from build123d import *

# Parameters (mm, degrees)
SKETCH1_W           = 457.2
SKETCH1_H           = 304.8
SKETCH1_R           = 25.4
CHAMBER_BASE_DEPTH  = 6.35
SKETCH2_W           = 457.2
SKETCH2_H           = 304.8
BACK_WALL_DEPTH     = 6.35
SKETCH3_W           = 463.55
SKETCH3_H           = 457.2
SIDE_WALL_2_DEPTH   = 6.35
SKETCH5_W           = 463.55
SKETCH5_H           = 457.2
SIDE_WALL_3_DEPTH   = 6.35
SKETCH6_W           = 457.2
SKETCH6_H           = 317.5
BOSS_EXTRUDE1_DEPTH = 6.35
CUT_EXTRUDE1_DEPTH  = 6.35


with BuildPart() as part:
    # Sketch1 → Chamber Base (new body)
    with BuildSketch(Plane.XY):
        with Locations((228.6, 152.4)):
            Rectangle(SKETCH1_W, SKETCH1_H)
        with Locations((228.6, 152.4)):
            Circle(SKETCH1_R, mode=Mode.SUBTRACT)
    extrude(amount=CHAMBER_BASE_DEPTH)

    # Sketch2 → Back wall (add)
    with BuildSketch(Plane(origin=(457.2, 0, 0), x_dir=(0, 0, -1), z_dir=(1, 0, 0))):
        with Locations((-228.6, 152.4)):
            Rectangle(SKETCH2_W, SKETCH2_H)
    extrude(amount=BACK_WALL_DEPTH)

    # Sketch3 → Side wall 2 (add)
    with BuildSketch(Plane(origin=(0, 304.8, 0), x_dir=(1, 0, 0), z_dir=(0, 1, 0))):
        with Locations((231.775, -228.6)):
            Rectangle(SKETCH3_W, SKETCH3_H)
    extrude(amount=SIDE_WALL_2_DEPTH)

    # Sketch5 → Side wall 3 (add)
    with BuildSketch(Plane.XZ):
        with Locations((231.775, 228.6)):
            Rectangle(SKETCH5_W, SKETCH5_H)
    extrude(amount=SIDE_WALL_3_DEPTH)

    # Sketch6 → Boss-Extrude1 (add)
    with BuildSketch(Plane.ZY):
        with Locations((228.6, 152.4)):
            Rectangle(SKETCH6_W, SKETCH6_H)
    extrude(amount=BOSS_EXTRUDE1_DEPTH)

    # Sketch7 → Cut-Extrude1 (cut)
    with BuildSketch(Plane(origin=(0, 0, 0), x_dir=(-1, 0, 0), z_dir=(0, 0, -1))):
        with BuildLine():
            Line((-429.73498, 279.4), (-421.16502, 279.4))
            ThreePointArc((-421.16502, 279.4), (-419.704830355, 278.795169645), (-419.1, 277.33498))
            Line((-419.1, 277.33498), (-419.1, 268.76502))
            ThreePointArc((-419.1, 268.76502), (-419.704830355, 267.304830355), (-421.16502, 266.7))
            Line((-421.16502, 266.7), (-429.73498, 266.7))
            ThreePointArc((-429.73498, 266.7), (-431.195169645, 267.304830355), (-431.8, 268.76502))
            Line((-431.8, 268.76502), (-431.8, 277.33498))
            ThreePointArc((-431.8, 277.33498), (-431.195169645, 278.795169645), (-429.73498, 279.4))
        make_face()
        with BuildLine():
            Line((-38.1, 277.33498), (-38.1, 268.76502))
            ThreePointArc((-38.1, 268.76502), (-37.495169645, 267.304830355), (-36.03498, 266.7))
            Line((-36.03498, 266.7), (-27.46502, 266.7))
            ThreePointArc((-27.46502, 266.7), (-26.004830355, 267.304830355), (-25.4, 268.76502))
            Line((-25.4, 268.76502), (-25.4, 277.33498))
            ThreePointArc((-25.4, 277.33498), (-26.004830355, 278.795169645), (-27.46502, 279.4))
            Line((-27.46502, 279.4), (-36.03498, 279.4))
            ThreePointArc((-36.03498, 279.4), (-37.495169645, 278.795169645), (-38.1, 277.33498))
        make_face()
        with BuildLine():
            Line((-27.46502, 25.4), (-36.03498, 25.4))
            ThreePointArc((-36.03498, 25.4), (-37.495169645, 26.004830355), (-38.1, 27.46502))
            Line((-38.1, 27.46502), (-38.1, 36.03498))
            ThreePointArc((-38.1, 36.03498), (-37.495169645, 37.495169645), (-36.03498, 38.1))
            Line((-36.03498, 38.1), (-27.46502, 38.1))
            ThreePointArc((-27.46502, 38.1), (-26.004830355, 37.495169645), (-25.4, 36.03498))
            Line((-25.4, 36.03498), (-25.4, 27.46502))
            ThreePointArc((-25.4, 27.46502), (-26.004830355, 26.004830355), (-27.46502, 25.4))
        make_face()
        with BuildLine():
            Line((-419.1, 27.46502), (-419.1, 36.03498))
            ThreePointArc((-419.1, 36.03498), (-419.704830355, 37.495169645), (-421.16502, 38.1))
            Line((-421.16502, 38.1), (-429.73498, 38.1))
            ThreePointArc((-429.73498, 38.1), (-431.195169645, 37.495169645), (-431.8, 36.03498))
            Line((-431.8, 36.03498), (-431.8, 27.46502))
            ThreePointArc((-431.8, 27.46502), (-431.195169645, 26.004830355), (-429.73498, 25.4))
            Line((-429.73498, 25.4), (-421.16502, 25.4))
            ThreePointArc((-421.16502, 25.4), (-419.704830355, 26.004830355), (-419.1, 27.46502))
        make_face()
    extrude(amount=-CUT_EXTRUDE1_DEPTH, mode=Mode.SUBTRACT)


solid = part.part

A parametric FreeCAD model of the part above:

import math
import FreeCAD as App
import Part
import Sketcher
from FreeCAD import Vector
Q = App.Units.Quantity


def add_polygon(sketch, points):
    """Adds a closed chain of lines whose ends are joined by coincident constraints."""
    first, n = sketch.GeometryCount, len(points)
    for a, b in zip(points, points[1:] + points[:1]):
        sketch.addGeometry(Part.LineSegment(App.Vector(*a, 0), App.Vector(*b, 0)), False)
    for i in range(n):
        sketch.addConstraint(Sketcher.Constraint("Coincident", first + i, 2, first + (i + 1) % n, 1))

doc = App.newDocument("Part")
body = doc.addObject("PartDesign::Body", "Body")

sketch1 = body.newObject("Sketcher::SketchObject", "Sketch")
sketch1.AttachmentSupport = (doc.getObject("XY_Plane"), [""])
sketch1.MapMode = "FlatFace"
add_polygon(sketch1, [(0, 305), (0, 0), (457, 0), (457, 305)])
sketch1.addGeometry(Part.Circle(Vector(229, 152, 0), Vector(0, 0, 1), 25), False)
sketch1.addConstraint(Sketcher.Constraint("Vertical", 0))
sketch1.addConstraint(Sketcher.Constraint("Horizontal", 1))
sketch1.addConstraint(Sketcher.Constraint("Vertical", 2))
sketch1.addConstraint(Sketcher.Constraint("Horizontal", 3))
sketch1.addConstraint(Sketcher.Constraint("Coincident", 0, 2, -1, 1))
sketch1.addConstraint(Sketcher.Constraint("Diameter", 4, Q("2 in")))
sketch1.addConstraint(Sketcher.Constraint("DistanceX", 1, 1, 1, 2, Q("18 in")))
sketch1.addConstraint(Sketcher.Constraint("DistanceY", 0, 2, 0, 1, Q("12 in")))
sketch1.addConstraint(Sketcher.Constraint("DistanceX", -1, 1, 4, 3, Q("9 in")))
sketch1.addConstraint(Sketcher.Constraint("DistanceY", -1, 1, 4, 3, Q("6 in")))
pad1 = body.newObject("PartDesign::Pad", "Pad")
pad1.Profile = sketch1
pad1.Length = Q("0.25 in")

sketch2 = body.newObject("Sketcher::SketchObject", "Sketch001")
sketch2.AttachmentSupport = (doc.getObject("YZ_Plane"), [""])
sketch2.MapMode = "FlatFace"
sketch2.AttachmentOffset = App.Placement(Vector(0, 0, 18 * 25.4), App.Rotation())
add_polygon(sketch2, [(305, 457), (0, 457), (0, 0), (305, 0)])
sketch2.addConstraint(Sketcher.Constraint("Horizontal", 0))
sketch2.addConstraint(Sketcher.Constraint("Vertical", 1))
sketch2.addConstraint(Sketcher.Constraint("Horizontal", 2))
sketch2.addConstraint(Sketcher.Constraint("Vertical", 3))
sketch2.addConstraint(Sketcher.Constraint("Coincident", 1, 2, -1, 1))
sketch2.addConstraint(Sketcher.Constraint("DistanceX", 0, 2, 0, 1, Q("12 in")))
sketch2.addConstraint(Sketcher.Constraint("DistanceY", 1, 2, 1, 1, Q("18 in")))
pad2 = body.newObject("PartDesign::Pad", "Pad001")
pad2.Profile = sketch2
pad2.Length = Q("0.25 in")

sketch3 = body.newObject("Sketcher::SketchObject", "Sketch002")
sketch3.AttachmentSupport = (doc.getObject("XZ_Plane"), [""])
sketch3.MapMode = "FlatFace"
sketch3.AttachmentOffset = App.Placement(Vector(0, 0, -12 * 25.4), App.Rotation())
add_polygon(sketch3, [(0, 0), (0, 457), (464, 457), (464, 0)])
sketch3.addConstraint(Sketcher.Constraint("Vertical", 0))
sketch3.addConstraint(Sketcher.Constraint("Horizontal", 1))
sketch3.addConstraint(Sketcher.Constraint("Vertical", 2))
sketch3.addConstraint(Sketcher.Constraint("Horizontal", 3))
sketch3.addConstraint(Sketcher.Constraint("Coincident", 3, 2, -1, 1))
sketch3.addConstraint(Sketcher.Constraint("DistanceY", 0, 1, 0, 2, Q("18 in")))
sketch3.addConstraint(Sketcher.Constraint("DistanceX", 1, 1, 1, 2, Q("18.25 in")))
pad3 = body.newObject("PartDesign::Pad", "Pad002")
pad3.Profile = sketch3
pad3.Length = Q("0.25 in")
pad3.Reversed = True

sketch4 = body.newObject("Sketcher::SketchObject", "Sketch003")
sketch4.AttachmentSupport = (doc.getObject("XZ_Plane"), [""])
sketch4.MapMode = "FlatFace"
add_polygon(sketch4, [(0, 457), (0, 0), (464, 0), (464, 457)])
sketch4.addConstraint(Sketcher.Constraint("Vertical", 0))
sketch4.addConstraint(Sketcher.Constraint("Horizontal", 1))
sketch4.addConstraint(Sketcher.Constraint("Vertical", 2))
sketch4.addConstraint(Sketcher.Constraint("Horizontal", 3))
sketch4.addConstraint(Sketcher.Constraint("Coincident", 0, 2, -1, 1))
sketch4.addConstraint(Sketcher.Constraint("DistanceY", 0, 2, 0, 1, Q("18 in")))
sketch4.addConstraint(Sketcher.Constraint("DistanceX", 1, 1, 1, 2, Q("18.25 in")))
pad4 = body.newObject("PartDesign::Pad", "Pad003")
pad4.Profile = sketch4
pad4.Length = Q("0.25 in")

sketch5 = body.newObject("Sketcher::SketchObject", "Sketch004")
sketch5.AttachmentSupport = (doc.getObject("YZ_Plane"), [""])
sketch5.MapMode = "FlatFace"
add_polygon(sketch5, [(311, 0), (-6, 0), (-6, 457), (311, 457)])
sketch5.addConstraint(Sketcher.Constraint("Horizontal", 0))
sketch5.addConstraint(Sketcher.Constraint("Vertical", 1))
sketch5.addConstraint(Sketcher.Constraint("Horizontal", 2))
sketch5.addConstraint(Sketcher.Constraint("Vertical", 3))
sketch5.addConstraint(Sketcher.Constraint("PointOnObject", 0, 2, -1))
sketch5.addConstraint(Sketcher.Constraint("DistanceY", 1, 1, 1, 2, Q("18 in")))
sketch5.addConstraint(Sketcher.Constraint("DistanceX", 0, 2, 0, 1, Q("12.5 in")))
sketch5.addConstraint(Sketcher.Constraint("DistanceX", 0, 2, -1, 1, Q("0.25 in")))
pad5 = body.newObject("PartDesign::Pad", "Pad004")
pad5.Profile = sketch5
pad5.Length = Q("0.25 in")
pad5.Reversed = True

sketch6 = body.newObject("Sketcher::SketchObject", "Sketch005")
sketch6.AttachmentSupport = (doc.getObject("XY_Plane"), [""])
sketch6.MapMode = "FlatFace"
sketch6.addGeometry(Part.LineSegment(Vector(421.2, 279.4, 0), Vector(429.7, 279.4, 0)), False)
sketch6.addGeometry(Part.ArcOfCircle(Part.Circle(Vector(429.7, 277.3, 0), Vector(0, 0, 1), 2.1), math.radians(0), math.radians(90)), False)
sketch6.addGeometry(Part.LineSegment(Vector(431.8, 277.3, 0), Vector(431.8, 268.8, 0)), False)
sketch6.addGeometry(Part.ArcOfCircle(Part.Circle(Vector(429.7, 268.8, 0), Vector(0, 0, 1), 2.1), math.radians(-90), math.radians(0)), False)
sketch6.addGeometry(Part.LineSegment(Vector(429.7, 266.7, 0), Vector(421.2, 266.7, 0)), False)
sketch6.addGeometry(Part.ArcOfCircle(Part.Circle(Vector(421.2, 268.8, 0), Vector(0, 0, 1), 2.1), math.radians(-180), math.radians(-90)), False)
sketch6.addGeometry(Part.LineSegment(Vector(419.1, 268.8, 0), Vector(419.1, 277.3, 0)), False)
sketch6.addGeometry(Part.ArcOfCircle(Part.Circle(Vector(421.2, 277.3, 0), Vector(0, 0, 1), 2.1), math.radians(90), math.radians(180)), False)
sketch6.addGeometry(Part.LineSegment(Vector(38.1, 277.3, 0), Vector(38.1, 268.8, 0)), False)
sketch6.addGeometry(Part.ArcOfCircle(Part.Circle(Vector(36, 268.8, 0), Vector(0, 0, 1), 2.1), math.radians(-90), math.radians(0)), False)
sketch6.addGeometry(Part.LineSegment(Vector(36, 266.7, 0), Vector(27.5, 266.7, 0)), False)
sketch6.addGeometry(Part.ArcOfCircle(Part.Circle(Vector(27.5, 268.8, 0), Vector(0, 0, 1), 2.1), math.radians(-180), math.radians(-90)), False)
sketch6.addGeometry(Part.LineSegment(Vector(25.4, 268.8, 0), Vector(25.4, 277.3, 0)), False)
sketch6.addGeometry(Part.ArcOfCircle(Part.Circle(Vector(27.5, 277.3, 0), Vector(0, 0, 1), 2.1), math.radians(90), math.radians(180)), False)
sketch6.addGeometry(Part.LineSegment(Vector(27.5, 279.4, 0), Vector(36, 279.4, 0)), False)
sketch6.addGeometry(Part.ArcOfCircle(Part.Circle(Vector(36, 277.3, 0), Vector(0, 0, 1), 2.1), math.radians(0), math.radians(90)), False)
sketch6.addGeometry(Part.LineSegment(Vector(36, 25.4, 0), Vector(27.5, 25.4, 0)), False)
sketch6.addGeometry(Part.ArcOfCircle(Part.Circle(Vector(27.5, 27.5, 0), Vector(0, 0, 1), 2.1), math.radians(-180), math.radians(-90)), False)
sketch6.addGeometry(Part.LineSegment(Vector(25.4, 27.5, 0), Vector(25.4, 36, 0)), False)
sketch6.addGeometry(Part.ArcOfCircle(Part.Circle(Vector(27.5, 36, 0), Vector(0, 0, 1), 2.1), math.radians(90), math.radians(180)), False)
sketch6.addGeometry(Part.LineSegment(Vector(27.5, 38.1, 0), Vector(36, 38.1, 0)), False)
sketch6.addGeometry(Part.ArcOfCircle(Part.Circle(Vector(36, 36, 0), Vector(0, 0, 1), 2.1), math.radians(0), math.radians(90)), False)
sketch6.addGeometry(Part.LineSegment(Vector(38.1, 36, 0), Vector(38.1, 27.5, 0)), False)
sketch6.addGeometry(Part.ArcOfCircle(Part.Circle(Vector(36, 27.5, 0), Vector(0, 0, 1), 2.1), math.radians(-90), math.radians(0)), False)
sketch6.addGeometry(Part.LineSegment(Vector(419.1, 27.5, 0), Vector(419.1, 36, 0)), False)
sketch6.addGeometry(Part.ArcOfCircle(Part.Circle(Vector(421.2, 36, 0), Vector(0, 0, 1), 2.1), math.radians(90), math.radians(180)), False)
sketch6.addGeometry(Part.LineSegment(Vector(421.2, 38.1, 0), Vector(429.7, 38.1, 0)), False)
sketch6.addGeometry(Part.ArcOfCircle(Part.Circle(Vector(429.7, 36, 0), Vector(0, 0, 1), 2.1), math.radians(0), math.radians(90)), False)
sketch6.addGeometry(Part.LineSegment(Vector(431.8, 36, 0), Vector(431.8, 27.5, 0)), False)
sketch6.addGeometry(Part.ArcOfCircle(Part.Circle(Vector(429.7, 27.5, 0), Vector(0, 0, 1), 2.1), math.radians(-90), math.radians(0)), False)
sketch6.addGeometry(Part.LineSegment(Vector(429.7, 25.4, 0), Vector(421.2, 25.4, 0)), False)
sketch6.addGeometry(Part.ArcOfCircle(Part.Circle(Vector(421.2, 27.5, 0), Vector(0, 0, 1), 2.1), math.radians(-180), math.radians(-90)), False)
sketch6.addConstraint(Sketcher.Constraint("Tangent", 0, 2, 1, 2))
sketch6.addConstraint(Sketcher.Constraint("Tangent", 1, 1, 2, 1))
sketch6.addConstraint(Sketcher.Constraint("Tangent", 2, 2, 3, 2))
sketch6.addConstraint(Sketcher.Constraint("Tangent", 3, 1, 4, 1))
sketch6.addConstraint(Sketcher.Constraint("Tangent", 4, 2, 5, 2))
sketch6.addConstraint(Sketcher.Constraint("Tangent", 5, 1, 6, 1))
sketch6.addConstraint(Sketcher.Constraint("Tangent", 6, 2, 7, 2))
sketch6.addConstraint(Sketcher.Constraint("Tangent", 7, 1, 0, 1))
sketch6.addConstraint(Sketcher.Constraint("Tangent", 8, 2, 9, 2))
sketch6.addConstraint(Sketcher.Constraint("Tangent", 9, 1, 10, 1))
sketch6.addConstraint(Sketcher.Constraint("Tangent", 10, 2, 11, 2))
sketch6.addConstraint(Sketcher.Constraint("Tangent", 11, 1, 12, 1))
sketch6.addConstraint(Sketcher.Constraint("Tangent", 12, 2, 13, 2))
sketch6.addConstraint(Sketcher.Constraint("Tangent", 13, 1, 14, 1))
sketch6.addConstraint(Sketcher.Constraint("Tangent", 14, 2, 15, 2))
sketch6.addConstraint(Sketcher.Constraint("Tangent", 15, 1, 8, 1))
sketch6.addConstraint(Sketcher.Constraint("Tangent", 16, 2, 17, 2))
sketch6.addConstraint(Sketcher.Constraint("Tangent", 17, 1, 18, 1))
sketch6.addConstraint(Sketcher.Constraint("Tangent", 18, 2, 19, 2))
sketch6.addConstraint(Sketcher.Constraint("Tangent", 19, 1, 20, 1))
sketch6.addConstraint(Sketcher.Constraint("Tangent", 20, 2, 21, 2))
sketch6.addConstraint(Sketcher.Constraint("Tangent", 21, 1, 22, 1))
sketch6.addConstraint(Sketcher.Constraint("Tangent", 22, 2, 23, 2))
sketch6.addConstraint(Sketcher.Constraint("Tangent", 23, 1, 16, 1))
sketch6.addConstraint(Sketcher.Constraint("Tangent", 24, 2, 25, 2))
sketch6.addConstraint(Sketcher.Constraint("Tangent", 25, 1, 26, 1))
sketch6.addConstraint(Sketcher.Constraint("Tangent", 26, 2, 27, 2))
sketch6.addConstraint(Sketcher.Constraint("Tangent", 27, 1, 28, 1))
sketch6.addConstraint(Sketcher.Constraint("Tangent", 28, 2, 29, 2))
sketch6.addConstraint(Sketcher.Constraint("Tangent", 29, 1, 30, 1))
sketch6.addConstraint(Sketcher.Constraint("Tangent", 30, 2, 31, 2))
sketch6.addConstraint(Sketcher.Constraint("Tangent", 31, 1, 24, 1))
sketch6.addConstraint(Sketcher.Constraint("Horizontal", 0))
sketch6.addConstraint(Sketcher.Constraint("Vertical", 2))
sketch6.addConstraint(Sketcher.Constraint("Horizontal", 4))
sketch6.addConstraint(Sketcher.Constraint("Vertical", 6))
sketch6.addConstraint(Sketcher.Constraint("Vertical", 8))
sketch6.addConstraint(Sketcher.Constraint("Horizontal", 10))
sketch6.addConstraint(Sketcher.Constraint("Vertical", 12))
sketch6.addConstraint(Sketcher.Constraint("Horizontal", 14))
sketch6.addConstraint(Sketcher.Constraint("Horizontal", 16))
sketch6.addConstraint(Sketcher.Constraint("Vertical", 18))
sketch6.addConstraint(Sketcher.Constraint("Horizontal", 20))
sketch6.addConstraint(Sketcher.Constraint("Vertical", 22))
sketch6.addConstraint(Sketcher.Constraint("Vertical", 24))
sketch6.addConstraint(Sketcher.Constraint("Horizontal", 26))
sketch6.addConstraint(Sketcher.Constraint("Vertical", 28))
sketch6.addConstraint(Sketcher.Constraint("Horizontal", 30))
sketch6.addConstraint(Sketcher.Constraint("Equal", 1, 3))
sketch6.addConstraint(Sketcher.Constraint("Equal", 3, 5))
sketch6.addConstraint(Sketcher.Constraint("Equal", 5, 7))
sketch6.addConstraint(Sketcher.Constraint("Equal", 7, 9))
sketch6.addConstraint(Sketcher.Constraint("Equal", 9, 11))
sketch6.addConstraint(Sketcher.Constraint("Equal", 11, 13))
sketch6.addConstraint(Sketcher.Constraint("Equal", 13, 15))
sketch6.addConstraint(Sketcher.Constraint("Equal", 15, 17))
sketch6.addConstraint(Sketcher.Constraint("Equal", 17, 19))
sketch6.addConstraint(Sketcher.Constraint("Equal", 19, 21))
sketch6.addConstraint(Sketcher.Constraint("Equal", 21, 23))
sketch6.addConstraint(Sketcher.Constraint("Equal", 23, 25))
sketch6.addConstraint(Sketcher.Constraint("Equal", 25, 27))
sketch6.addConstraint(Sketcher.Constraint("Equal", 27, 29))
sketch6.addConstraint(Sketcher.Constraint("Equal", 29, 31))
sketch6.addConstraint(Sketcher.Constraint("Horizontal", 5, 3, 9, 3))
sketch6.addConstraint(Sketcher.Constraint("Horizontal", 7, 3, 13, 3))
sketch6.addConstraint(Sketcher.Constraint("Horizontal", 21, 3, 25, 3))
sketch6.addConstraint(Sketcher.Constraint("Horizontal", 23, 3, 29, 3))
sketch6.addConstraint(Sketcher.Constraint("Vertical", 13, 3, 17, 3))
sketch6.addConstraint(Sketcher.Constraint("Vertical", 15, 3, 21, 3))
sketch6.addConstraint(Sketcher.Constraint("Vertical", 7, 3, 25, 3))
sketch6.addConstraint(Sketcher.Constraint("Vertical", 3, 3, 27, 3))
sketch6.addConstraint(Sketcher.Constraint("Equal", 4, 10))
sketch6.addConstraint(Sketcher.Constraint("Equal", 30, 2))
sketch6.addConstraint(Sketcher.Constraint("Equal", 12, 18))
sketch6.addConstraint(Sketcher.Constraint("DistanceY", -1, 1, 0, 2, Q("11 in")))
sketch6.addConstraint(Sketcher.Constraint("DistanceX", -1, 1, 1, 1, Q("17 in")))
sketch6.addConstraint(Sketcher.Constraint("DistanceX", -1, 1, 11, 1, Q("1 in")))
sketch6.addConstraint(Sketcher.Constraint("DistanceY", -1, 1, 16, 2, Q("1 in")))
sketch6.addConstraint(Sketcher.Constraint("DistanceY", -1, 1, 3, 1, Q("10.5 in")))
sketch6.addConstraint(Sketcher.Constraint("Radius", 1, Q("0.0813 in")))
pocket1 = body.newObject("PartDesign::Pocket", "Pocket")
pocket1.Profile = sketch6
pocket1.Length = Q("0.25 in")
pocket1.Reversed = True

doc.recompute()
